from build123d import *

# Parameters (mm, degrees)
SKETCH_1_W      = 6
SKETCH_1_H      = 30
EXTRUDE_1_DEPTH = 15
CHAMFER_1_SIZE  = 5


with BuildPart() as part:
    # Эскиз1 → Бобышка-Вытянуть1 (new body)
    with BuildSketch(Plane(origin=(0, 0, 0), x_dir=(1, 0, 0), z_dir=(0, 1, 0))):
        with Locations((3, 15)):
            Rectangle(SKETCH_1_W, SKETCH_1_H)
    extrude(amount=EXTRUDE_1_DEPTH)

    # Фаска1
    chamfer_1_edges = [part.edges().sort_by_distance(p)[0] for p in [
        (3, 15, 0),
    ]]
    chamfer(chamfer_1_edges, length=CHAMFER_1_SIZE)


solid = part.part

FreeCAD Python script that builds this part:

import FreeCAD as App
import Part
import Sketcher


def edges_at(feature, points):
    """Names of the edges that pass closest to the given points."""
    edges = feature.Shape.Edges
    near = lambda p: min(range(len(edges)), key=lambda i: edges[i].distToShape(Part.Vertex(*p))[0])
    return sorted({f"Edge{near(p) + 1}" for p in points})


def add_polygon(sketch, points):
    """Adds a closed chain of lines whose ends are joined by coincident constraints."""
    first, n = sketch.GeometryCount, len(points)
    for a, b in zip(points, points[1:] + points[:1]):
        sketch.addGeometry(Part.LineSegment(App.Vector(*a, 0), App.Vector(*b, 0)), False)
    for i in range(n):
        sketch.addConstraint(Sketcher.Constraint("Coincident", first + i, 2, first + (i + 1) % n, 1))

doc = App.newDocument("Part")
body = doc.addObject("PartDesign::Body", "Body")

sketch1 = doc.addObject("Sketcher::SketchObject", "Sketch")
body.addObject(sketch1)
sketch1.AttachmentSupport = (doc.XZ_Plane, [""])
sketch1.MapMode = "FlatFace"
add_polygon(sketch1, [(0, -30), (0, 0), (6, 0), (6, -30)])
sketch1.addConstraint([
    Sketcher.Constraint("Vertical", 0),
    Sketcher.Constraint("Horizontal", 1),
    Sketcher.Constraint("Vertical", 2),
    Sketcher.Constraint("Horizontal", 3),
    Sketcher.Constraint("Coincident", 0, 2, -1, 1),
    Sketcher.Constraint("DistanceX", 1, 1, 1, 2, 6.0),
    Sketcher.Constraint("DistanceY", 0, 1, 0, 2, 30.0),
])
pad1 = doc.addObject("PartDesign::Pad", "Pad")
body.addObject(pad1)
pad1.Profile = sketch1
pad1.Length = 15
pad1.Reversed = True
doc.recompute()

chamfer = doc.addObject("PartDesign::Chamfer", "Chamfer")
body.addObject(chamfer)
chamfer.Base = (pad1, edges_at(pad1, [(3, 15, 0)]))
chamfer.Size = 5

doc.recompute()
